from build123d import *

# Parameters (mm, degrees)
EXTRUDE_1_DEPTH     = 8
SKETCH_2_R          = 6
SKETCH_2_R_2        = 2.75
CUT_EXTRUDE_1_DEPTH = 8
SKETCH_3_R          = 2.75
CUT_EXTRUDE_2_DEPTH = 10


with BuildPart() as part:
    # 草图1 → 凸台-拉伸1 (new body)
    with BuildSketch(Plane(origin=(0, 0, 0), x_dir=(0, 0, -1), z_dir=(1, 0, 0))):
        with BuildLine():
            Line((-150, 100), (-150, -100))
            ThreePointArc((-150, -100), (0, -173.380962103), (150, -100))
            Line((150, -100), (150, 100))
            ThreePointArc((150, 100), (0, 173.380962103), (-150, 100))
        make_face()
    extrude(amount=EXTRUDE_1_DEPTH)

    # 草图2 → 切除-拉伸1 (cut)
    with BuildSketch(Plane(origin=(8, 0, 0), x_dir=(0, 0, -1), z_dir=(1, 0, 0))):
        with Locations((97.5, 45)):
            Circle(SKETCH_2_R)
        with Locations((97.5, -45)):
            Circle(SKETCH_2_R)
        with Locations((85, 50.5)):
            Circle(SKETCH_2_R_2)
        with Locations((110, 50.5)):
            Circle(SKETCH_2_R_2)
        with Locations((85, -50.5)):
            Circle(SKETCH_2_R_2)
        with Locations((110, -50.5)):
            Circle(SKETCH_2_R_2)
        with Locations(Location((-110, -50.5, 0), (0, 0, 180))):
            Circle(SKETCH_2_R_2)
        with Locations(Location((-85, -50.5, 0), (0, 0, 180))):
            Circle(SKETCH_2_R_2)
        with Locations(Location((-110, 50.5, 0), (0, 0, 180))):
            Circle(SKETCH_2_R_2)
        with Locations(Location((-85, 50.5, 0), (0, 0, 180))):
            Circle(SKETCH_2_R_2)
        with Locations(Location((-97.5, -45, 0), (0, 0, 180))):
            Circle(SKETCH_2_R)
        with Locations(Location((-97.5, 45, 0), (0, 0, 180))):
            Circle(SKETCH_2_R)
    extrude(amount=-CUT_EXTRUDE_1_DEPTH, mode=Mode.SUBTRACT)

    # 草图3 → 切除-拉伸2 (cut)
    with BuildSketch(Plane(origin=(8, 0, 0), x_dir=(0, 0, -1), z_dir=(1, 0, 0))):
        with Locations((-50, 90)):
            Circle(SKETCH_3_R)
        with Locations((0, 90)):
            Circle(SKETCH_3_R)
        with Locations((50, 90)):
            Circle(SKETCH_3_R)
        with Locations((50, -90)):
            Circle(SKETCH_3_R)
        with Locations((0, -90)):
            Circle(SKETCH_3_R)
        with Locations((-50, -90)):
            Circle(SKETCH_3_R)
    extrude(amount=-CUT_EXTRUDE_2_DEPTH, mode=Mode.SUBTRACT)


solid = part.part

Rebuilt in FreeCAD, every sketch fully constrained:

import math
import FreeCAD as App
import Part
import Sketcher
from FreeCAD import Vector
Q = App.Units.Quantity

doc = App.newDocument("Part")
body = doc.addObject("PartDesign::Body", "Body")

sketch1 = body.newObject("Sketcher::SketchObject", "Sketch")
sketch1.AttachmentSupport = (doc.getObject("YZ_Plane"), [""])
sketch1.MapMode = "FlatFace"
sketch1.addGeometry([
    Part.LineSegment(Vector(100, 150, 0), Vector(-100, 150, 0)),
    Part.ArcOfCircle(Part.Circle(Vector(17, 0, 0), Vector(0, 0, 1), 190), math.radians(128), math.radians(232)),
    Part.LineSegment(Vector(-100, -150, 0), Vector(100, -150, 0)),
    Part.ArcOfCircle(Part.Circle(Vector(-17, 0, 0), Vector(0, 0, 1), 190), math.radians(-52), math.radians(52)),
], False)
sketch1.addConstraint([
    Sketcher.Constraint("Coincident", 0, 2, 1, 1),
    Sketcher.Constraint("Coincident", 1, 2, 2, 1),
    Sketcher.Constraint("Coincident", 2, 2, 3, 1),
    Sketcher.Constraint("Coincident", 3, 2, 0, 1),
    Sketcher.Constraint("Horizontal", 0),
    Sketcher.Constraint("Horizontal", 2),
    Sketcher.Constraint("Equal", 1, 3),
    Sketcher.Constraint("Symmetric", 1, 3, 3, 3, -1, 1),
    Sketcher.Constraint("Symmetric", 0, 2, 1, 2, -1),
    Sketcher.Constraint("Radius", 1, Q("190 mm")),
    Sketcher.Constraint("DistanceX", 0, 2, 0, 1, Q("200 mm")),
    Sketcher.Constraint("DistanceY", -1, 1, 0, 2, Q("150 mm")),
])
pad1 = body.newObject("PartDesign::Pad", "Pad")
pad1.Profile = sketch1
pad1.Length = 8

sketch2 = body.newObject("Sketcher::SketchObject", "Sketch001")
sketch2.AttachmentSupport = (doc.getObject("YZ_Plane"), [""])
sketch2.MapMode = "FlatFace"
sketch2.AttachmentOffset = App.Placement(Vector(0, 0, 8), App.Rotation())
sketch2.addGeometry([
    Part.Circle(Vector(45, -97.5, 0), Vector(0, 0, 1), 6),
    Part.Circle(Vector(-45, -97.5, 0), Vector(0, 0, 1), 6),
    Part.Circle(Vector(50.5, -85, 0), Vector(0, 0, 1), 2.8),
    Part.Circle(Vector(50.5, -110, 0), Vector(0, 0, 1), 2.8),
    Part.Circle(Vector(-50.5, -85, 0), Vector(0, 0, 1), 2.8),
    Part.Circle(Vector(-50.5, -110, 0), Vector(0, 0, 1), 2.8),
    Part.Circle(Vector(-50.5, 110, 0), Vector(0, 0, 1), 2.8),
    Part.Circle(Vector(-50.5, 85, 0), Vector(0, 0, 1), 2.8),
    Part.Circle(Vector(50.5, 110, 0), Vector(0, 0, 1), 2.8),
    Part.Circle(Vector(50.5, 85, 0), Vector(0, 0, 1), 2.8),
    Part.Circle(Vector(-45, 97.5, 0), Vector(0, 0, 1), 6),
    Part.Circle(Vector(45, 97.5, 0), Vector(0, 0, 1), 6),
], False)
sketch2.addConstraint([
    Sketcher.Constraint("Equal", 0, 1),
    Sketcher.Constraint("Equal", 2, 3),
    Sketcher.Constraint("Equal", 3, 4),
    Sketcher.Constraint("Equal", 4, 5),
    Sketcher.Constraint("Equal", 5, 6),
    Sketcher.Constraint("Equal", 6, 7),
    Sketcher.Constraint("Equal", 7, 8),
    Sketcher.Constraint("Equal", 8, 9),
    Sketcher.Constraint("Equal", 1, 10),
    Sketcher.Constraint("Equal", 10, 11),
    Sketcher.Constraint("Symmetric", 3, 3, 6, 3, -1, 1),
    Sketcher.Constraint("Symmetric", 2, 3, 7, 3, -1, 1),
    Sketcher.Constraint("Symmetric", 5, 3, 8, 3, -1, 1),
    Sketcher.Constraint("Symmetric", 4, 3, 9, 3, -1, 1),
    Sketcher.Constraint("Symmetric", 0, 3, 10, 3, -1, 1),
    Sketcher.Constraint("Symmetric", 1, 3, 11, 3, -1, 1),
    Sketcher.Constraint("Symmetric", 0, 3, 1, 3, -2),
    Sketcher.Constraint("Symmetric", 2, 3, 4, 3, -2),
    Sketcher.Constraint("Symmetric", 3, 3, 5, 3, -2),
    Sketcher.Constraint("Vertical", 2, 3, 3, 3),
    Sketcher.Constraint("Diameter", 0, Q("12 mm")),
    Sketcher.Constraint("Diameter", 2, Q("5.5 mm")),
    Sketcher.Constraint("DistanceX", -1, 1, 0, 3, Q("45 mm")),
    Sketcher.Constraint("DistanceY", 2, 3, -1, 1, Q("85 mm")),
    Sketcher.Constraint("DistanceY", 3, 3, -1, 1, Q("110 mm")),
    Sketcher.Constraint("DistanceX", 4, 3, 2, 3, Q("101 mm")),
    Sketcher.Constraint("DistanceY", 0, 3, -1, 1, Q("97.5 mm")),
])
pocket1 = body.newObject("PartDesign::Pocket", "Pocket")
pocket1.Profile = sketch2
pocket1.Length = 8

sketch3 = body.newObject("Sketcher::SketchObject", "Sketch002")
sketch3.AttachmentSupport = (doc.getObject("YZ_Plane"), [""])
sketch3.MapMode = "FlatFace"
sketch3.AttachmentOffset = App.Placement(Vector(0, 0, 8), App.Rotation())
sketch3.addGeometry([
    Part.Circle(Vector(90, 50, 0), Vector(0, 0, 1), 2.8),
    Part.Circle(Vector(90, 0, 0), Vector(0, 0, 1), 2.8),
    Part.Circle(Vector(90, -50, 0), Vector(0, 0, 1), 2.8),
    Part.Circle(Vector(-90, -50, 0), Vector(0, 0, 1), 2.8),
    Part.Circle(Vector(-90, 0, 0), Vector(0, 0, 1), 2.8),
    Part.Circle(Vector(-90, 50, 0), Vector(0, 0, 1), 2.8),
], False)
sketch3.addConstraint([
    Sketcher.Constraint("Equal", 0, 1),
    Sketcher.Constraint("Equal", 1, 2),
    Sketcher.Constraint("Equal", 2, 3),
    Sketcher.Constraint("Equal", 3, 4),
    Sketcher.Constraint("Equal", 4, 5),
    Sketcher.Constraint("Symmetric", 0, 3, 3, 3, -1, 1),
    Sketcher.Constraint("Symmetric", 1, 3, 4, 3, -1, 1),
    Sketcher.Constraint("Symmetric", 2, 3, 5, 3, -1, 1),
    Sketcher.Constraint("Symmetric", 2, 3, 3, 3, -2),
    Sketcher.Constraint("PointOnObject", 1, 3, -1),
    Sketcher.Constraint("Vertical", 0, 3, 1, 3),
    Sketcher.Constraint("Diameter", 0, Q("5.5 mm")),
    Sketcher.Constraint("DistanceX", -1, 1, 0, 3, Q("90 mm")),
    Sketcher.Constraint("DistanceY", -1, 1, 0, 3, Q("50 mm")),
])
pocket2 = body.newObject("PartDesign::Pocket", "Pocket001")
pocket2.Profile = sketch3
pocket2.Length = 10

doc.recompute()
